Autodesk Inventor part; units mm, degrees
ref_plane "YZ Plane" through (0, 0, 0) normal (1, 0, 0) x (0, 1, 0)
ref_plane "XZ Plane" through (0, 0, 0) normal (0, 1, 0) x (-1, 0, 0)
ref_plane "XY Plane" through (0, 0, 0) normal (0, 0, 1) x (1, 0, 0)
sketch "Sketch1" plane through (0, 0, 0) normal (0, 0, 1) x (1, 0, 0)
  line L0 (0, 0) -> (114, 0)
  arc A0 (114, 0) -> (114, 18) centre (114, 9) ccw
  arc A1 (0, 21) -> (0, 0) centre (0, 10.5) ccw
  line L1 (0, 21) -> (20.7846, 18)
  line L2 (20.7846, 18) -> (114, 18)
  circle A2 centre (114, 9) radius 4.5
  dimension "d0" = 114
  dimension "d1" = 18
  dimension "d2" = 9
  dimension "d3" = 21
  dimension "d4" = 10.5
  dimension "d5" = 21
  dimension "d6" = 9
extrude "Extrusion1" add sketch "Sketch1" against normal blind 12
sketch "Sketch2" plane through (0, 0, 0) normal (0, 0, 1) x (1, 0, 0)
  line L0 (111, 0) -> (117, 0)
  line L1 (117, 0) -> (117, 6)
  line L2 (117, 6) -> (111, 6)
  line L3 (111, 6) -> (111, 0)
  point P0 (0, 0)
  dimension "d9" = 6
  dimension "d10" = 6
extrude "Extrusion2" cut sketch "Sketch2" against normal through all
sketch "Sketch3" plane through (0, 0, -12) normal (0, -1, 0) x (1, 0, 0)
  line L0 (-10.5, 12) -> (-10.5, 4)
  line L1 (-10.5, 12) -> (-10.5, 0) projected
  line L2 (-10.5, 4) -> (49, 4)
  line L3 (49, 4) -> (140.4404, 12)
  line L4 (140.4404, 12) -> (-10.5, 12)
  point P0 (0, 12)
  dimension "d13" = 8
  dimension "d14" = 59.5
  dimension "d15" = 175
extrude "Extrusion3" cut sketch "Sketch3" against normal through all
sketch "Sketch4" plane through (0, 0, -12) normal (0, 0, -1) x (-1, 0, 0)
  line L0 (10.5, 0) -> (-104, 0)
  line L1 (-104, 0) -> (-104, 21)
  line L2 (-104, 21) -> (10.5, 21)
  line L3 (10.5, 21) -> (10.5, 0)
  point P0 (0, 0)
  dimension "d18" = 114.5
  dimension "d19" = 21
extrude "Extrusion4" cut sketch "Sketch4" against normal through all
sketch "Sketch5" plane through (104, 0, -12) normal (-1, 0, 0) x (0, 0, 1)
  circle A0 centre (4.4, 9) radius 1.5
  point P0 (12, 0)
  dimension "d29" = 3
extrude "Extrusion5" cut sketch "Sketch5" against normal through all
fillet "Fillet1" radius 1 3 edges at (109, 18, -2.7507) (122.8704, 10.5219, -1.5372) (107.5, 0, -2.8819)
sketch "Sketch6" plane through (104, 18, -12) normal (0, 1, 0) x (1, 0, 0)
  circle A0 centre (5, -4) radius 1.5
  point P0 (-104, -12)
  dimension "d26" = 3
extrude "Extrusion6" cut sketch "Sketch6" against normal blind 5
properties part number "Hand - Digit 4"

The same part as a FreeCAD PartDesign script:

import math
import FreeCAD as App
import Part
import Sketcher

V = App.Vector
Q = App.Units.Quantity


def edges_at(feature, points):
    """Names of the edges that pass closest to the given points."""
    edges = feature.Shape.Edges
    near = lambda p: min(range(len(edges)), key=lambda i: edges[i].distToShape(Part.Vertex(*p))[0])
    return sorted({f"Edge{near(p) + 1}" for p in points})


def add_polygon(sketch, points):
    """Adds a closed chain of lines whose ends are joined by coincident constraints."""
    first, n = sketch.GeometryCount, len(points)
    for a, b in zip(points, points[1:] + points[:1]):
        sketch.addGeometry(Part.LineSegment(App.Vector(*a, 0), App.Vector(*b, 0)), False)
    for i in range(n):
        sketch.addConstraint(Sketcher.Constraint("Coincident", first + i, 2, first + (i + 1) % n, 1))

doc = App.newDocument("Part")
body = doc.addObject("PartDesign::Body", "Body")

# Sketch on XY plane
sketch1 = body.newObject("Sketcher::SketchObject", "Sketch")
sketch1.AttachmentSupport = (doc.getObject("XY_Plane"), [""])
sketch1.MapMode = "FlatFace"
sketch1.addGeometry(Part.ArcOfCircle(Part.Circle(V(0, 10.5, 0), V(0, 0, 1), 10.5), math.radians(90), math.radians(270)), False)
sketch1.addGeometry(Part.LineSegment(V(0, 0, 0), V(114, 0, 0)), False)
sketch1.addGeometry(Part.ArcOfCircle(Part.Circle(V(114, 9, 0), V(0, 0, 1), 9), math.radians(-90), math.radians(90)), False)
sketch1.addGeometry(Part.LineSegment(V(114, 18, 0), V(20.8, 18, 0)), False)
sketch1.addGeometry(Part.LineSegment(V(20.8, 18, 0), V(0, 21, 0)), False)
sketch1.addGeometry(Part.Circle(V(114, 9, 0), V(0, 0, 1), 4.5), False)
sketch1.addConstraint(Sketcher.Constraint("Tangent", 0, 2, 1, 1))
sketch1.addConstraint(Sketcher.Constraint("Tangent", 1, 2, 2, 1))
sketch1.addConstraint(Sketcher.Constraint("Tangent", 2, 2, 3, 1))
sketch1.addConstraint(Sketcher.Constraint("Coincident", 3, 2, 4, 1))
sketch1.addConstraint(Sketcher.Constraint("Coincident", 4, 2, 0, 1))
sketch1.addConstraint(Sketcher.Constraint("Horizontal", 1))
sketch1.addConstraint(Sketcher.Constraint("Horizontal", 3))
sketch1.addConstraint(Sketcher.Constraint("Coincident", 0, 2, -1, 1))
sketch1.addConstraint(Sketcher.Constraint("Coincident", 5, 3, 2, 3))
sketch1.addConstraint(Sketcher.Constraint("PointOnObject", 4, 2, -2))
sketch1.addConstraint(Sketcher.Constraint("Diameter", 5, Q("9 mm")))
sketch1.addConstraint(Sketcher.Constraint("Radius", 2, Q("9 mm")))
sketch1.addConstraint(Sketcher.Constraint("Radius", 0, Q("10.5 mm")))
sketch1.addConstraint(Sketcher.Constraint("DistanceX", 1, 1, 1, 2, Q("114 mm")))
sketch1.addConstraint(Sketcher.Constraint("Distance", 4, Q("21 mm")))
pad1 = body.newObject("PartDesign::Pad", "Pad")
pad1.Profile = sketch1
pad1.Length = 12
pad1.Reversed = True

# Sketch on XY plane
sketch2 = body.newObject("Sketcher::SketchObject", "Sketch001")
sketch2.AttachmentSupport = (doc.getObject("XY_Plane"), [""])
sketch2.MapMode = "FlatFace"
add_polygon(sketch2, [(111, 6), (111, 0), (117, 0), (117, 6)])  # lines 0-3
sketch2.addConstraint(Sketcher.Constraint("Vertical", 0))
sketch2.addConstraint(Sketcher.Constraint("Horizontal", 1))
sketch2.addConstraint(Sketcher.Constraint("Vertical", 2))
sketch2.addConstraint(Sketcher.Constraint("Horizontal", 3))
sketch2.addConstraint(Sketcher.Constraint("PointOnObject", 0, 2, -1))
sketch2.addConstraint(Sketcher.Constraint("Equal", 3, 0))
sketch2.addConstraint(Sketcher.Constraint("DistanceX", 1, 1, 1, 2, Q("6 mm")))
sketch2.addConstraint(Sketcher.Constraint("DistanceX", -1, 1, 0, 2, Q("111 mm")))
pocket1 = body.newObject("PartDesign::Pocket", "Pocket")
pocket1.Profile = sketch2
pocket1.Type = "ThroughAll"

# Sketch on XZ plane
sketch3 = body.newObject("Sketcher::SketchObject", "Sketch002")
sketch3.AttachmentSupport = (doc.getObject("XZ_Plane"), [""])
sketch3.MapMode = "FlatFace"
add_polygon(sketch3, [(140, 0), (-10, 0), (-10, -8), (49, -8)])  # lines 0-3
sketch3.addConstraint(Sketcher.Constraint("Horizontal", 0))
sketch3.addConstraint(Sketcher.Constraint("Vertical", 1))
sketch3.addConstraint(Sketcher.Constraint("Horizontal", 2))
sketch3.addConstraint(Sketcher.Constraint("PointOnObject", 0, 2, -1))
sketch3.addConstraint(Sketcher.Constraint("DistanceY", 1, 2, 1, 1, Q("8 mm")))
sketch3.addConstraint(Sketcher.Constraint("DistanceX", 2, 1, 2, 2, Q("59.5 mm")))
sketch3.addConstraint(Sketcher.Constraint("Angle", 3, Q("5 deg")))
sketch3.addConstraint(Sketcher.Constraint("DistanceX", -1, 1, 2, 2, Q("49 mm")))
pocket2 = body.newObject("PartDesign::Pocket", "Pocket001")
pocket2.Profile = sketch3
pocket2.Type = "ThroughAll"

# Sketch on XY plane
sketch4 = body.newObject("Sketcher::SketchObject", "Sketch003")
sketch4.AttachmentSupport = (doc.getObject("XY_Plane"), [""])
sketch4.MapMode = "FlatFace"
sketch4.AttachmentOffset = App.Placement(V(0, 0, -12), App.Rotation())
add_polygon(sketch4, [(104, 0), (-10, 0), (-10, 21), (104, 21)])  # lines 0-3
sketch4.addConstraint(Sketcher.Constraint("Horizontal", 0))
sketch4.addConstraint(Sketcher.Constraint("Vertical", 1))
sketch4.addConstraint(Sketcher.Constraint("Horizontal", 2))
sketch4.addConstraint(Sketcher.Constraint("Vertical", 3))
sketch4.addConstraint(Sketcher.Constraint("PointOnObject", 0, 2, -1))
sketch4.addConstraint(Sketcher.Constraint("DistanceY", 1, 1, 1, 2, Q("21 mm")))
sketch4.addConstraint(Sketcher.Constraint("DistanceX", 0, 2, 0, 1, Q("114.5 mm")))
sketch4.addConstraint(Sketcher.Constraint("DistanceX", -1, 1, 2, 2, Q("104 mm")))
pocket3 = body.newObject("PartDesign::Pocket", "Pocket002")
pocket3.Profile = sketch4
pocket3.Type = "ThroughAll"
pocket3.Reversed = True

# Sketch on YZ plane
sketch5 = body.newObject("Sketcher::SketchObject", "Sketch004")
sketch5.AttachmentSupport = (doc.getObject("YZ_Plane"), [""])
sketch5.MapMode = "FlatFace"
sketch5.AttachmentOffset = App.Placement(V(0, 0, 104), App.Rotation())
sketch5.addGeometry(Part.Circle(V(9, -7.6, 0), V(0, 0, 1), 1.5), False)
sketch5.addConstraint(Sketcher.Constraint("Diameter", 0, Q("3 mm")))
sketch5.addConstraint(Sketcher.Constraint("DistanceX", -1, 1, 0, 3, Q("9 mm")))
sketch5.addConstraint(Sketcher.Constraint("DistanceY", 0, 3, -1, 1, Q("7.6 mm")))
pocket4 = body.newObject("PartDesign::Pocket", "Pocket003")
pocket4.Profile = sketch5
pocket4.Type = "ThroughAll"
pocket4.Reversed = True
doc.recompute()

fillet = body.newObject("PartDesign::Fillet", "Fillet")
fillet.Base = (pocket4, edges_at(pocket4, [(109, 18, -2.751), (122.87, 10.522, -1.537), (107.5, 0, -2.882)]))
fillet.Radius = 1

# Sketch on XZ plane
sketch6 = body.newObject("Sketcher::SketchObject", "Sketch005")
sketch6.AttachmentSupport = (doc.getObject("XZ_Plane"), [""])
sketch6.MapMode = "FlatFace"
sketch6.AttachmentOffset = App.Placement(V(0, 0, -18), App.Rotation())
sketch6.addGeometry(Part.Circle(V(109, -8, 0), V(0, 0, 1), 1.5), False)
sketch6.addConstraint(Sketcher.Constraint("Diameter", 0, Q("3 mm")))
sketch6.addConstraint(Sketcher.Constraint("DistanceX", -1, 1, 0, 3, Q("109 mm")))
sketch6.addConstraint(Sketcher.Constraint("DistanceY", 0, 3, -1, 1, Q("8 mm")))
pocket5 = body.newObject("PartDesign::Pocket", "Pocket004")
pocket5.Profile = sketch6
pocket5.Length = 5
pocket5.Reversed = True

doc.recompute()
